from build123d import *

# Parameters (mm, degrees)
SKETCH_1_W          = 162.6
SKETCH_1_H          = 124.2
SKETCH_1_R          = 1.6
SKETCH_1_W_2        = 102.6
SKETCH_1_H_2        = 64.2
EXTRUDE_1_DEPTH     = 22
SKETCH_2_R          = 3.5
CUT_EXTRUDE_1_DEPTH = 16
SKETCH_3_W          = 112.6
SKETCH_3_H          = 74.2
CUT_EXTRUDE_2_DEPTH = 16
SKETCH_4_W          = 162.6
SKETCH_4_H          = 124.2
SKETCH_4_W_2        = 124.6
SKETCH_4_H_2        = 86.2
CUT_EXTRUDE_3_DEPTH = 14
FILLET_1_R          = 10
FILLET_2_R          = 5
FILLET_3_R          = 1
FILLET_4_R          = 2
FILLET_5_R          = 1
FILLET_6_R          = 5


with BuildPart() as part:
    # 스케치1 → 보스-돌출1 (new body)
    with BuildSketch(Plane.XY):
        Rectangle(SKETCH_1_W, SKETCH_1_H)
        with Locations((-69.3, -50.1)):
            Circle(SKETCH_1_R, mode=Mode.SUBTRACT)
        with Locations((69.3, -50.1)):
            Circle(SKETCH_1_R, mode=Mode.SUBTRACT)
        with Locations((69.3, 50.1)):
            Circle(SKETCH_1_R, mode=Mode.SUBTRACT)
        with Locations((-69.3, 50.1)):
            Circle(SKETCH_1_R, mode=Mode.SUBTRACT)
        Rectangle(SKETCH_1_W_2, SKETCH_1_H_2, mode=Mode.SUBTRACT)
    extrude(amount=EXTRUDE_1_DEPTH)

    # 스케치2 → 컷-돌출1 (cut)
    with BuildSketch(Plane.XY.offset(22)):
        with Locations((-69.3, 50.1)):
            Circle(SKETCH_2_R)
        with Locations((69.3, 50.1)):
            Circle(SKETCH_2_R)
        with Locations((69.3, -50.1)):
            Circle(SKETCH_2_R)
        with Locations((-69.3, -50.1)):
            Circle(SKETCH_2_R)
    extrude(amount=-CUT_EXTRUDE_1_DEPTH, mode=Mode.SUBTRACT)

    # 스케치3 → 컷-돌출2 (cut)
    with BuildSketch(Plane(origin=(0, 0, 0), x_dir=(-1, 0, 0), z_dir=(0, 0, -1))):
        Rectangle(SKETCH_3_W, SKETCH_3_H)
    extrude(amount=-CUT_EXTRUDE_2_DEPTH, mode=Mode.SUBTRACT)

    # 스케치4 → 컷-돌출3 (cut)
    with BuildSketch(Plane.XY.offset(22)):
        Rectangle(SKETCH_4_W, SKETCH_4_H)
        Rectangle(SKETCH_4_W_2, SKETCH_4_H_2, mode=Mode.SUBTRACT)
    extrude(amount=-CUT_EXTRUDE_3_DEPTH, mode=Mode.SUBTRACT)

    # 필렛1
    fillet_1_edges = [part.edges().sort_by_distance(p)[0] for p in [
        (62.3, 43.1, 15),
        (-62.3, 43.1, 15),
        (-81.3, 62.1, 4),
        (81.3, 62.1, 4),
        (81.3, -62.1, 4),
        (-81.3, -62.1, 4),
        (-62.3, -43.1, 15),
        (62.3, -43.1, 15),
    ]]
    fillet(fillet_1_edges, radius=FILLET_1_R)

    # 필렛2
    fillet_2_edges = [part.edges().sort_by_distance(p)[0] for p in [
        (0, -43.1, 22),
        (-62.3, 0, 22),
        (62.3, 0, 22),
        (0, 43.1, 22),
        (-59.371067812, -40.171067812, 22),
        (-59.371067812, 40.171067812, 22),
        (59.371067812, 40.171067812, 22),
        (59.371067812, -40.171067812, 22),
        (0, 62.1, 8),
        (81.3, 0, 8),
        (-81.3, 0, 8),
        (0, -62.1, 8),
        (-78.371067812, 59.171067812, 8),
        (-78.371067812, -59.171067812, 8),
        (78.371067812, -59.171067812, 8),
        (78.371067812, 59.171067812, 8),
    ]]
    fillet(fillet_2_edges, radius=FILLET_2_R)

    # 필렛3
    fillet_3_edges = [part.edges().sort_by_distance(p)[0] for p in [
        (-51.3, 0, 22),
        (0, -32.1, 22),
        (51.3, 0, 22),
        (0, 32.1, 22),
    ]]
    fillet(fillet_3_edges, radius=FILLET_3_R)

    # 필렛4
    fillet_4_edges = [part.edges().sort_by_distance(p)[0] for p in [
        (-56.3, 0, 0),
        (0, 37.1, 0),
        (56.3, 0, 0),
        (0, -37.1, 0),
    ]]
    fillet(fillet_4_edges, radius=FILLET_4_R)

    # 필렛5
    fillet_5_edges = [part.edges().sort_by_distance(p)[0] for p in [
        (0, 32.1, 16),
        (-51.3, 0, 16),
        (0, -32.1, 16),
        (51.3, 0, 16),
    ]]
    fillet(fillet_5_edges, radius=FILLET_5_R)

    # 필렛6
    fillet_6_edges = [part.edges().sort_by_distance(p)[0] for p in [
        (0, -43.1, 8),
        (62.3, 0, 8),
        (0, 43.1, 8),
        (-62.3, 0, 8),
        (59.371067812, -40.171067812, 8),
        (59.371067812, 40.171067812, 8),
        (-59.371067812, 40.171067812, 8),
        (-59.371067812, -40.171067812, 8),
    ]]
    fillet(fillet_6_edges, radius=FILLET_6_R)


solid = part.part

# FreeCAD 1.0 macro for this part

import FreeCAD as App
import Part
import Sketcher
from FreeCAD import Vector
Q = App.Units.Quantity


def edges_at(feature, points):
    """Names of the edges that pass closest to the given points."""
    edges = feature.Shape.Edges
    near = lambda p: min(range(len(edges)), key=lambda i: edges[i].distToShape(Part.Vertex(*p))[0])
    return sorted({f"Edge{near(p) + 1}" for p in points})

doc = App.newDocument("Part")
body = doc.addObject("PartDesign::Body", "Body")

# Sketch on XY plane
sketch1 = body.newObject("Sketcher::SketchObject", "Sketch")
sketch1.AttachmentSupport = (doc.getObject("XY_Plane"), [""])
sketch1.MapMode = "FlatFace"
sketch1.addGeometry([
    Part.LineSegment(Vector(-81.3, 62.1, 0), Vector(-81.3, -62.1, 0)),  # 0
    Part.LineSegment(Vector(-81.3, -62.1, 0), Vector(81.3, -62.1, 0)),  # 1
    Part.LineSegment(Vector(81.3, -62.1, 0), Vector(81.3, 62.1, 0)),  # 2
    Part.LineSegment(Vector(81.3, 62.1, 0), Vector(-81.3, 62.1, 0)),  # 3
    Part.Circle(Vector(-69.3, -50.1, 0), Vector(0, 0, 1), 1.6),  # 4
    Part.Circle(Vector(69.3, -50.1, 0), Vector(0, 0, 1), 1.6),  # 5
    Part.Circle(Vector(-69.3, 50.1, 0), Vector(0, 0, 1), 1.6),  # 6
    Part.LineSegment(Vector(51.3, -32.1, 0), Vector(-51.3, -32.1, 0)),  # 7
    Part.LineSegment(Vector(-51.3, -32.1, 0), Vector(-51.3, 32.1, 0)),  # 8
    Part.LineSegment(Vector(-51.3, 32.1, 0), Vector(51.3, 32.1, 0)),  # 9
    Part.LineSegment(Vector(51.3, 32.1, 0), Vector(51.3, -32.1, 0)),  # 10
    Part.Circle(Vector(69.3, 50.1, 0), Vector(0, 0, 1), 1.6),  # 11
], False)
sketch1.addConstraint([
    Sketcher.Constraint("Coincident", 0, 2, 1, 1),
    Sketcher.Constraint("Coincident", 1, 2, 2, 1),
    Sketcher.Constraint("Coincident", 2, 2, 3, 1),
    Sketcher.Constraint("Coincident", 3, 2, 0, 1),
    Sketcher.Constraint("Coincident", 7, 2, 8, 1),
    Sketcher.Constraint("Coincident", 8, 2, 9, 1),
    Sketcher.Constraint("Coincident", 9, 2, 10, 1),
    Sketcher.Constraint("Coincident", 10, 2, 7, 1),
    Sketcher.Constraint("Vertical", 0),
    Sketcher.Constraint("Horizontal", 1),
    Sketcher.Constraint("Vertical", 2),
    Sketcher.Constraint("Horizontal", 3),
    Sketcher.Constraint("Horizontal", 7),
    Sketcher.Constraint("Vertical", 8),
    Sketcher.Constraint("Horizontal", 9),
    Sketcher.Constraint("Vertical", 10),
    Sketcher.Constraint("Equal", 4, 5),
    Sketcher.Constraint("Equal", 5, 6),
    Sketcher.Constraint("Equal", 6, 11),
    Sketcher.Constraint("Symmetric", 5, 3, 6, 3, -1, 1),
    Sketcher.Constraint("Symmetric", 4, 3, 11, 3, -1, 1),
    Sketcher.Constraint("Symmetric", 0, 2, 2, 2, -1, 1),
    Sketcher.Constraint("Symmetric", 7, 2, 9, 2, -1, 1),
    Sketcher.Constraint("Symmetric", 4, 3, 5, 3, -2),
    Sketcher.Constraint("Diameter", 4, Q("3.2 mm")),
    Sketcher.Constraint("DistanceX", 1, 1, 1, 2, Q("162.6 mm")),
    Sketcher.Constraint("DistanceX", 7, 2, 7, 1, Q("102.6 mm")),
    Sketcher.Constraint("DistanceY", 0, 2, 0, 1, Q("124.2 mm")),
    Sketcher.Constraint("DistanceY", 8, 1, 8, 2, Q("64.2 mm")),
    Sketcher.Constraint("DistanceX", 0, 2, 4, 3, Q("12 mm")),
    Sketcher.Constraint("DistanceY", 0, 2, 4, 3, Q("12 mm")),
])
pad1 = body.newObject("PartDesign::Pad", "Pad")
pad1.Profile = sketch1
pad1.Length = 22

# Sketch on XY plane
sketch2 = body.newObject("Sketcher::SketchObject", "Sketch001")
sketch2.AttachmentSupport = (doc.getObject("XY_Plane"), [""])
sketch2.MapMode = "FlatFace"
sketch2.AttachmentOffset = App.Placement(Vector(0, 0, 22), App.Rotation())
sketch2.addGeometry([
    Part.Circle(Vector(-69.3, 50.1, 0), Vector(0, 0, 1), 3.5),
    Part.Circle(Vector(69.3, 50.1, 0), Vector(0, 0, 1), 3.5),
    Part.Circle(Vector(69.3, -50.1, 0), Vector(0, 0, 1), 3.5),
    Part.Circle(Vector(-69.3, -50.1, 0), Vector(0, 0, 1), 3.5),
], False)
sketch2.addConstraint([
    Sketcher.Constraint("Equal", 0, 1),
    Sketcher.Constraint("Equal", 1, 2),
    Sketcher.Constraint("Equal", 2, 3),
    Sketcher.Constraint("Symmetric", 0, 3, 2, 3, -1, 1),
    Sketcher.Constraint("Symmetric", 1, 3, 3, 3, -1, 1),
    Sketcher.Constraint("Symmetric", 0, 3, 1, 3, -2),
    Sketcher.Constraint("Diameter", 0, Q("7 mm")),
    Sketcher.Constraint("DistanceX", 0, 3, -1, 1, Q("69.3 mm")),
    Sketcher.Constraint("DistanceY", -1, 1, 0, 3, Q("50.1 mm")),
])
pocket1 = body.newObject("PartDesign::Pocket", "Pocket")
pocket1.Profile = sketch2
pocket1.Length = 16

# Sketch on XY plane
sketch3 = body.newObject("Sketcher::SketchObject", "Sketch002")
sketch3.AttachmentSupport = (doc.getObject("XY_Plane"), [""])
sketch3.MapMode = "FlatFace"
sketch3.addGeometry([
    Part.LineSegment(Vector(56, 37, 0), Vector(56, -37, 0)),
    Part.LineSegment(Vector(56, -37, 0), Vector(-56, -37, 0)),
    Part.LineSegment(Vector(-56, -37, 0), Vector(-56, 37, 0)),
    Part.LineSegment(Vector(-56, 37, 0), Vector(56, 37, 0)),
], False)
sketch3.addConstraint([
    Sketcher.Constraint("Coincident", 0, 2, 1, 1),
    Sketcher.Constraint("Coincident", 1, 2, 2, 1),
    Sketcher.Constraint("Coincident", 2, 2, 3, 1),
    Sketcher.Constraint("Coincident", 3, 2, 0, 1),
    Sketcher.Constraint("Vertical", 0),
    Sketcher.Constraint("Horizontal", 1),
    Sketcher.Constraint("Vertical", 2),
    Sketcher.Constraint("Horizontal", 3),
    Sketcher.Constraint("Symmetric", 0, 2, 2, 2, -1, 1),
    Sketcher.Constraint("DistanceX", 1, 2, 1, 1, Q("112.6 mm")),
    Sketcher.Constraint("DistanceY", 0, 2, 0, 1, Q("74.2 mm")),
])
pocket2 = body.newObject("PartDesign::Pocket", "Pocket001")
pocket2.Profile = sketch3
pocket2.Length = 16
pocket2.Reversed = True

# Sketch on XY plane
sketch4 = body.newObject("Sketcher::SketchObject", "Sketch003")
sketch4.AttachmentSupport = (doc.getObject("XY_Plane"), [""])
sketch4.MapMode = "FlatFace"
sketch4.AttachmentOffset = App.Placement(Vector(0, 0, 22), App.Rotation())
sketch4.addGeometry([
    Part.LineSegment(Vector(-81, 62, 0), Vector(-81, -62, 0)),  # 0
    Part.LineSegment(Vector(-81, -62, 0), Vector(81, -62, 0)),  # 1
    Part.LineSegment(Vector(81, -62, 0), Vector(81, 62, 0)),  # 2
    Part.LineSegment(Vector(81, 62, 0), Vector(-81, 62, 0)),  # 3
    Part.LineSegment(Vector(62, -43, 0), Vector(-62, -43, 0)),  # 4
    Part.LineSegment(Vector(-62, -43, 0), Vector(-62, 43, 0)),  # 5
    Part.LineSegment(Vector(-62, 43, 0), Vector(62, 43, 0)),  # 6
    Part.LineSegment(Vector(62, 43, 0), Vector(62, -43, 0)),  # 7
], False)
sketch4.addConstraint([
    Sketcher.Constraint("Coincident", 0, 2, 1, 1),
    Sketcher.Constraint("Coincident", 1, 2, 2, 1),
    Sketcher.Constraint("Coincident", 2, 2, 3, 1),
    Sketcher.Constraint("Coincident", 3, 2, 0, 1),
    Sketcher.Constraint("Coincident", 4, 2, 5, 1),
    Sketcher.Constraint("Coincident", 5, 2, 6, 1),
    Sketcher.Constraint("Coincident", 6, 2, 7, 1),
    Sketcher.Constraint("Coincident", 7, 2, 4, 1),
    Sketcher.Constraint("Vertical", 0),
    Sketcher.Constraint("Horizontal", 1),
    Sketcher.Constraint("Vertical", 2),
    Sketcher.Constraint("Horizontal", 3),
    Sketcher.Constraint("Horizontal", 4),
    Sketcher.Constraint("Vertical", 5),
    Sketcher.Constraint("Horizontal", 6),
    Sketcher.Constraint("Vertical", 7),
    Sketcher.Constraint("Symmetric", 0, 2, 2, 2, -1, 1),
    Sketcher.Constraint("Symmetric", 4, 2, 6, 2, -1, 1),
    Sketcher.Constraint("DistanceX", 1, 1, 1, 2, Q("162.6 mm")),
    Sketcher.Constraint("DistanceX", 4, 2, 4, 1, Q("124.6 mm")),
    Sketcher.Constraint("DistanceY", 0, 2, 0, 1, Q("124.2 mm")),
    Sketcher.Constraint("DistanceY", 5, 1, 5, 2, Q("86.2 mm")),
])
pocket3 = body.newObject("PartDesign::Pocket", "Pocket002")
pocket3.Profile = sketch4
pocket3.Length = 14
doc.recompute()

fillet = body.newObject("PartDesign::Fillet", "Fillet")
fillet.Base = (pocket3, edges_at(pocket3, [
    (62.3, 43.1, 15),
    (-62.3, 43.1, 15),
    (-81.3, 62.1, 4),
    (81.3, 62.1, 4),
    (81.3, -62.1, 4),
    (-81.3, -62.1, 4),
    (-62.3, -43.1, 15),
    (62.3, -43.1, 15),
]))
fillet.Radius = 10
doc.recompute()

fillet2 = body.newObject("PartDesign::Fillet", "Fillet001")
fillet2.Base = (fillet, edges_at(fillet, [
    (0, -43.1, 22),
    (-62.3, 0, 22),
    (62.3, 0, 22),
    (0, 43.1, 22),
    (-59.371, -40.171, 22),
    (-59.371, 40.171, 22),
    (59.371, 40.171, 22),
    (59.371, -40.171, 22),
    (0, 62.1, 8),
    (81.3, 0, 8),
    (-81.3, 0, 8),
    (0, -62.1, 8),
    (-78.371, 59.171, 8),
    (-78.371, -59.171, 8),
    (78.371, -59.171, 8),
    (78.371, 59.171, 8),
]))
fillet2.Radius = 5
doc.recompute()

fillet3 = body.newObject("PartDesign::Fillet", "Fillet002")
fillet3.Base = (fillet2, edges_at(fillet2, [
    (-51.3, 0, 22),
    (0, -32.1, 22),
    (51.3, 0, 22),
    (0, 32.1, 22),
]))
fillet3.Radius = 1
doc.recompute()

fillet4 = body.newObject("PartDesign::Fillet", "Fillet003")
fillet4.Base = (fillet3, edges_at(fillet3, [
    (-56.3, 0, 0),
    (0, 37.1, 0),
    (56.3, 0, 0),
    (0, -37.1, 0),
]))
fillet4.Radius = 2
doc.recompute()

fillet5 = body.newObject("PartDesign::Fillet", "Fillet004")
fillet5.Base = (fillet4, edges_at(fillet4, [
    (0, 32.1, 16),
    (-51.3, 0, 16),
    (0, -32.1, 16),
    (51.3, 0, 16),
]))
fillet5.Radius = 1
doc.recompute()

fillet6 = body.newObject("PartDesign::Fillet", "Fillet005")
fillet6.Base = (fillet5, edges_at(fillet5, [
    (0, -43.1, 8),
    (62.3, 0, 8),
    (0, 43.1, 8),
    (-62.3, 0, 8),
    (59.371, -40.171, 8),
    (59.371, 40.171, 8),
    (-59.371, 40.171, 8),
    (-59.371, -40.171, 8),
]))
fillet6.Radius = 5

doc.recompute()
